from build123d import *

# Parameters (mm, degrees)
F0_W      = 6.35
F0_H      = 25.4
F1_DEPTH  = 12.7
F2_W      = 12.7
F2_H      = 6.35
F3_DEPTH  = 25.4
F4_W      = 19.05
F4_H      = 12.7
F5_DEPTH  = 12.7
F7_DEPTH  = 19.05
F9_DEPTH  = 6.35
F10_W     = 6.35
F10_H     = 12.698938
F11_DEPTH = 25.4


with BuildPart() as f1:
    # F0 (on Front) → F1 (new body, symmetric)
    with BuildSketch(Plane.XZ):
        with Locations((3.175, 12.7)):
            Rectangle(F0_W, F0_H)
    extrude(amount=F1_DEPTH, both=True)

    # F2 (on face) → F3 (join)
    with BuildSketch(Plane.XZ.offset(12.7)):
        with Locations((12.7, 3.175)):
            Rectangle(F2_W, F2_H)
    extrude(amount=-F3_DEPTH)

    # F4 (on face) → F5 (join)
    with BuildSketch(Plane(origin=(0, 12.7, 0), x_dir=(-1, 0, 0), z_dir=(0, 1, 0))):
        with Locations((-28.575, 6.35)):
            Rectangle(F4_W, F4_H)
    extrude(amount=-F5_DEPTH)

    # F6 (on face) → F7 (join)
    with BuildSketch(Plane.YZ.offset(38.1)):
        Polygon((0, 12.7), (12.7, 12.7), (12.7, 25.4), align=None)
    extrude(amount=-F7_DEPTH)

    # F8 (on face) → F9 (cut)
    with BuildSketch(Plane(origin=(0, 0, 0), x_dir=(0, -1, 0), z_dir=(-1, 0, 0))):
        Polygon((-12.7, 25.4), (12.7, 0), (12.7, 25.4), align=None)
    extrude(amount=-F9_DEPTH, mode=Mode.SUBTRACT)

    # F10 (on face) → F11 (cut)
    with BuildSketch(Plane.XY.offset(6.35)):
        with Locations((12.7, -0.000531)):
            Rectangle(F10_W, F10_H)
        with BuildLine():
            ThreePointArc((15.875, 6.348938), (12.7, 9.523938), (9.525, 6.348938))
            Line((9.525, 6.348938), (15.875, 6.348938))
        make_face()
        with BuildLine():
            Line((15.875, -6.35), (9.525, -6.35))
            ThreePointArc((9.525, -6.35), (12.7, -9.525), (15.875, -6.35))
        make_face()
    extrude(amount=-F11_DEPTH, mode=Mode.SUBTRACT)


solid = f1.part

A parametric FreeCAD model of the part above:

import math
import FreeCAD as App
import Part
import Sketcher
from FreeCAD import Vector
Q = App.Units.Quantity

doc = App.newDocument("Part")
body = doc.addObject("PartDesign::Body", "Body")

# Sketch on XZ plane
sketch1 = body.newObject("Sketcher::SketchObject", "Sketch")
sketch1.AttachmentSupport = (doc.getObject("XZ_Plane"), [""])
sketch1.MapMode = "FlatFace"
sketch1.addGeometry([
    Part.LineSegment(Vector(0, 25, 0), Vector(0, 0, 0)),
    Part.LineSegment(Vector(0, 0, 0), Vector(6, 0, 0)),
    Part.LineSegment(Vector(6, 0, 0), Vector(6, 25, 0)),
    Part.LineSegment(Vector(6, 25, 0), Vector(0, 25, 0)),
], False)
sketch1.addConstraint([
    Sketcher.Constraint("Coincident", 0, 2, 1, 1),
    Sketcher.Constraint("Coincident", 1, 2, 2, 1),
    Sketcher.Constraint("Coincident", 2, 2, 3, 1),
    Sketcher.Constraint("Coincident", 3, 2, 0, 1),
    Sketcher.Constraint("Vertical", 0),
    Sketcher.Constraint("Horizontal", 1),
    Sketcher.Constraint("Vertical", 2),
    Sketcher.Constraint("Horizontal", 3),
    Sketcher.Constraint("Coincident", 0, 2, -1, 1),
    Sketcher.Constraint("DistanceY", 0, 2, 0, 1, Q("1 in")),
    Sketcher.Constraint("DistanceX", 1, 1, 1, 2, Q("0.25 in")),
])
pad1 = body.newObject("PartDesign::Pad", "Pad")
pad1.Profile = sketch1
pad1.Length = Q("1 in")
pad1.Midplane = True

# Sketch on XZ plane
sketch2 = body.newObject("Sketcher::SketchObject", "Sketch001")
sketch2.AttachmentSupport = (doc.getObject("XZ_Plane"), [""])
sketch2.MapMode = "FlatFace"
sketch2.AttachmentOffset = App.Placement(Vector(0, 0, 0.5 * 25.4), App.Rotation())
sketch2.addGeometry([
    Part.LineSegment(Vector(6, 6, 0), Vector(6, 0, 0)),
    Part.LineSegment(Vector(6, 0, 0), Vector(19, 0, 0)),
    Part.LineSegment(Vector(19, 0, 0), Vector(19, 6, 0)),
    Part.LineSegment(Vector(19, 6, 0), Vector(6, 6, 0)),
], False)
sketch2.addConstraint([
    Sketcher.Constraint("Coincident", 0, 2, 1, 1),
    Sketcher.Constraint("Coincident", 1, 2, 2, 1),
    Sketcher.Constraint("Coincident", 2, 2, 3, 1),
    Sketcher.Constraint("Coincident", 3, 2, 0, 1),
    Sketcher.Constraint("Vertical", 0),
    Sketcher.Constraint("Horizontal", 1),
    Sketcher.Constraint("Vertical", 2),
    Sketcher.Constraint("Horizontal", 3),
    Sketcher.Constraint("PointOnObject", 0, 2, -1),
    Sketcher.Constraint("DistanceX", 1, 1, 1, 2, Q("0.5 in")),
    Sketcher.Constraint("DistanceY", 0, 2, 0, 1, Q("0.25 in")),
    Sketcher.Constraint("DistanceX", -1, 1, 0, 2, Q("0.25 in")),
])
pad2 = body.newObject("PartDesign::Pad", "Pad001")
pad2.Profile = sketch2
pad2.Length = Q("1 in")
pad2.Reversed = True

# Sketch on XZ plane
sketch3 = body.newObject("Sketcher::SketchObject", "Sketch002")
sketch3.AttachmentSupport = (doc.getObject("XZ_Plane"), [""])
sketch3.MapMode = "FlatFace"
sketch3.AttachmentOffset = App.Placement(Vector(0, 0, -0.5 * 25.4), App.Rotation())
sketch3.addGeometry([
    Part.LineSegment(Vector(38, 13, 0), Vector(38, 0, 0)),
    Part.LineSegment(Vector(38, 0, 0), Vector(19, 0, 0)),
    Part.LineSegment(Vector(19, 0, 0), Vector(19, 13, 0)),
    Part.LineSegment(Vector(19, 13, 0), Vector(38, 13, 0)),
], False)
sketch3.addConstraint([
    Sketcher.Constraint("Coincident", 0, 2, 1, 1),
    Sketcher.Constraint("Coincident", 1, 2, 2, 1),
    Sketcher.Constraint("Coincident", 2, 2, 3, 1),
    Sketcher.Constraint("Coincident", 3, 2, 0, 1),
    Sketcher.Constraint("Vertical", 0),
    Sketcher.Constraint("Horizontal", 1),
    Sketcher.Constraint("Vertical", 2),
    Sketcher.Constraint("Horizontal", 3),
    Sketcher.Constraint("PointOnObject", 0, 2, -1),
    Sketcher.Constraint("DistanceY", 0, 2, 0, 1, Q("0.5 in")),
    Sketcher.Constraint("DistanceX", 1, 2, 1, 1, Q("0.75 in")),
    Sketcher.Constraint("DistanceX", -1, 1, 0, 2, Q("1.5 in")),
])
pad3 = body.newObject("PartDesign::Pad", "Pad002")
pad3.Profile = sketch3
pad3.Length = Q("0.5 in")

# Sketch on YZ plane
sketch4 = body.newObject("Sketcher::SketchObject", "Sketch003")
sketch4.AttachmentSupport = (doc.getObject("YZ_Plane"), [""])
sketch4.MapMode = "FlatFace"
sketch4.AttachmentOffset = App.Placement(Vector(0, 0, 1.5 * 25.4), App.Rotation())
sketch4.addGeometry([
    Part.LineSegment(Vector(0, 13, 0), Vector(13, 13, 0)),
    Part.LineSegment(Vector(13, 13, 0), Vector(13, 25, 0)),
    Part.LineSegment(Vector(13, 25, 0), Vector(0, 13, 0)),
], False)
sketch4.addConstraint([
    Sketcher.Constraint("Coincident", 0, 2, 1, 1),
    Sketcher.Constraint("Coincident", 1, 2, 2, 1),
    Sketcher.Constraint("Coincident", 2, 2, 0, 1),
    Sketcher.Constraint("Horizontal", 0),
    Sketcher.Constraint("Vertical", 1),
    Sketcher.Constraint("PointOnObject", 2, 2, -2),
    Sketcher.Constraint("Equal", 0, 1),
    Sketcher.Constraint("DistanceX", 0, 1, 0, 2, Q("0.5 in")),
    Sketcher.Constraint("DistanceY", -1, 1, 1, 2, Q("1 in")),
])
pad4 = body.newObject("PartDesign::Pad", "Pad003")
pad4.Profile = sketch4
pad4.Length = Q("0.75 in")
pad4.Reversed = True

# Sketch on YZ plane
sketch5 = body.newObject("Sketcher::SketchObject", "Sketch004")
sketch5.AttachmentSupport = (doc.getObject("YZ_Plane"), [""])
sketch5.MapMode = "FlatFace"
sketch5.addGeometry([
    Part.LineSegment(Vector(13, 25, 0), Vector(-13, 0, 0)),
    Part.LineSegment(Vector(-13, 0, 0), Vector(-13, 25, 0)),
    Part.LineSegment(Vector(-13, 25, 0), Vector(13, 25, 0)),
], False)
sketch5.addConstraint([
    Sketcher.Constraint("Coincident", 0, 2, 1, 1),
    Sketcher.Constraint("Coincident", 1, 2, 2, 1),
    Sketcher.Constraint("Coincident", 2, 2, 0, 1),
    Sketcher.Constraint("Vertical", 1),
    Sketcher.Constraint("Horizontal", 2),
    Sketcher.Constraint("PointOnObject", 0, 2, -1),
    Sketcher.Constraint("Equal", 2, 1),
    Sketcher.Constraint("DistanceX", 2, 1, 2, 2, Q("1 in")),
    Sketcher.Constraint("DistanceX", 0, 2, -1, 1, Q("0.5 in")),
])
pocket1 = body.newObject("PartDesign::Pocket", "Pocket")
pocket1.Profile = sketch5
pocket1.Length = Q("0.25 in")
pocket1.Reversed = True

# Sketch on XY plane
sketch6 = body.newObject("Sketcher::SketchObject", "Sketch005")
sketch6.AttachmentSupport = (doc.getObject("XY_Plane"), [""])
sketch6.MapMode = "FlatFace"
sketch6.AttachmentOffset = App.Placement(Vector(0, 0, 0.25 * 25.4), App.Rotation())
sketch6.addGeometry([
    Part.LineSegment(Vector(9.5, 6.3, 0), Vector(9.5, -6.3, 0)),
    Part.ArcOfCircle(Part.Circle(Vector(12.7, -6.3, 0), Vector(0, 0, 1), 3.2), math.radians(180), math.radians(360)),
    Part.LineSegment(Vector(15.9, -6.3, 0), Vector(15.9, 6.3, 0)),
    Part.ArcOfCircle(Part.Circle(Vector(12.7, 6.3, 0), Vector(0, 0, 1), 3.2), math.radians(0), math.radians(180)),
], False)
sketch6.addConstraint([
    Sketcher.Constraint("Tangent", 0, 2, 1, 1),
    Sketcher.Constraint("Tangent", 1, 2, 2, 1),
    Sketcher.Constraint("Tangent", 2, 2, 3, 1),
    Sketcher.Constraint("Tangent", 3, 2, 0, 1),
    Sketcher.Constraint("Vertical", 0),
    Sketcher.Constraint("Vertical", 2),
    Sketcher.Constraint("Radius", 1, Q("0.125 in")),
    Sketcher.Constraint("DistanceX", -1, 1, 1, 3, Q("0.5 in")),
    Sketcher.Constraint("DistanceY", 1, 3, -1, 1, Q("0.25 in")),
    Sketcher.Constraint("DistanceY", 0, 2, 0, 1, Q("12.698938 mm")),
])
pocket2 = body.newObject("PartDesign::Pocket", "Pocket001")
pocket2.Profile = sketch6
pocket2.Length = Q("1 in")

doc.recompute()
